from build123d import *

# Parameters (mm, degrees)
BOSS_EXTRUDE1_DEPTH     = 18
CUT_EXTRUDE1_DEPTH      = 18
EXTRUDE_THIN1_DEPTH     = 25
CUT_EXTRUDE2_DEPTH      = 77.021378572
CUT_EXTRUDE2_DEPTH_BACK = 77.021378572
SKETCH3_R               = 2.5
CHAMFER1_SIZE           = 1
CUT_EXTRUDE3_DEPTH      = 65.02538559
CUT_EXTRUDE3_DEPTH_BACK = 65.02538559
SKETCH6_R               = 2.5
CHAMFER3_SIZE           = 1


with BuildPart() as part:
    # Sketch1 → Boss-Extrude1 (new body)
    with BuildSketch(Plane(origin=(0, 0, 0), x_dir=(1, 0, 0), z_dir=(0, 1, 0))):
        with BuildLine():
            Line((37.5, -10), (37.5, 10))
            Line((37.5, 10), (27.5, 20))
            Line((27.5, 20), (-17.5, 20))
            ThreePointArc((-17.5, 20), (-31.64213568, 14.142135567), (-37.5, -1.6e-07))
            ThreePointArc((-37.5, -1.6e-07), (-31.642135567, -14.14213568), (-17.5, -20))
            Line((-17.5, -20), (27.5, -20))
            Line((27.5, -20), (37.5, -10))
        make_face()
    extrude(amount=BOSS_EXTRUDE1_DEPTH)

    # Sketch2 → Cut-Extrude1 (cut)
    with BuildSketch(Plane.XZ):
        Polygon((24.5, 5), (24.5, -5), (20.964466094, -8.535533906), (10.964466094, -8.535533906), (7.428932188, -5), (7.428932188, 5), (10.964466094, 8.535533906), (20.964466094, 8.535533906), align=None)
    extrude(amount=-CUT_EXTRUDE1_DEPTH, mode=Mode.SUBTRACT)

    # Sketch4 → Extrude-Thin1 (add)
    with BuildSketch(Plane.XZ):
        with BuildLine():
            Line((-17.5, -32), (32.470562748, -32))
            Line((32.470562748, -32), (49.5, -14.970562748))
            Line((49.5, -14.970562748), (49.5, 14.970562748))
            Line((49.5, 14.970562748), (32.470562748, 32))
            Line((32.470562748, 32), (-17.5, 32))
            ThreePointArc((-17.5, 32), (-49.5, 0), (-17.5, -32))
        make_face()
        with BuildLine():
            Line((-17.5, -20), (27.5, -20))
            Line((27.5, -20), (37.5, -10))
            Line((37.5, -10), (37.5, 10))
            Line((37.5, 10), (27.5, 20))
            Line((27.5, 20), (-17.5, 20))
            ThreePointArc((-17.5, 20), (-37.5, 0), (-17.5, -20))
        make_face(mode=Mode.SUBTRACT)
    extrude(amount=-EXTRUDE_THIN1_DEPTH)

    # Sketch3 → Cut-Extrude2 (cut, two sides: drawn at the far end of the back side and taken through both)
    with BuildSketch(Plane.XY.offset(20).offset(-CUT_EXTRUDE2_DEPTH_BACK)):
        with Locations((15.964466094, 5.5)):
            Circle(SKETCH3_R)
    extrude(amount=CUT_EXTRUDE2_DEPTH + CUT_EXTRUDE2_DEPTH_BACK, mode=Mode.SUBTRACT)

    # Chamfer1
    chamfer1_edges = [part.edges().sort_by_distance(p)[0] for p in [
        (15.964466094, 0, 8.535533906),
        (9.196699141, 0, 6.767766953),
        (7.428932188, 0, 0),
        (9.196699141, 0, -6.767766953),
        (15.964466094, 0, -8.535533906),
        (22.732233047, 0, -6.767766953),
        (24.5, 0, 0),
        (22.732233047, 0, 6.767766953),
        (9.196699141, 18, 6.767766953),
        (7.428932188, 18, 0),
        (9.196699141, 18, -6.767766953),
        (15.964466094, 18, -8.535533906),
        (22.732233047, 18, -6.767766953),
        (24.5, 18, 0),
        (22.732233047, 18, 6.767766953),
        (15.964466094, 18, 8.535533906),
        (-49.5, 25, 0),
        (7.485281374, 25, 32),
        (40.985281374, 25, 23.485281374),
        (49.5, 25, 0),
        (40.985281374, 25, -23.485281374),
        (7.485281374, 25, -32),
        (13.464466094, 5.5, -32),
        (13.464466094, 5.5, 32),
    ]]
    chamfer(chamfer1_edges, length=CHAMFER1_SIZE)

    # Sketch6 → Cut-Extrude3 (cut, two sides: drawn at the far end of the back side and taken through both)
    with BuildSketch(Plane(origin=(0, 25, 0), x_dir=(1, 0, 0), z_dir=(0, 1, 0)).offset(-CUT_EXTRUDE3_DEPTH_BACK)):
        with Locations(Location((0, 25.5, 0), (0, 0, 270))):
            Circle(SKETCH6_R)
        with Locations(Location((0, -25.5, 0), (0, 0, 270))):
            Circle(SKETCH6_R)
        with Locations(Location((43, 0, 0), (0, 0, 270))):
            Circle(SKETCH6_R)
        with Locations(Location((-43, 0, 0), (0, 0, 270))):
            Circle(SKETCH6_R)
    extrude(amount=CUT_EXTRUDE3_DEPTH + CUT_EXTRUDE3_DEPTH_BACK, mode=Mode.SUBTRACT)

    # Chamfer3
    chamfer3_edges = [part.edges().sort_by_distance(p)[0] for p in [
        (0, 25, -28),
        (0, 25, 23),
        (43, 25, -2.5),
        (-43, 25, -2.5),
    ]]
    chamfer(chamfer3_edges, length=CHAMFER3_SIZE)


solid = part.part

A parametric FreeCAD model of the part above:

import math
import FreeCAD as App
import Part
import Sketcher
Q = App.Units.Quantity


def edges_at(feature, points):
    """Names of the edges that pass closest to the given points."""
    edges = feature.Shape.Edges
    near = lambda p: min(range(len(edges)), key=lambda i: edges[i].distToShape(Part.Vertex(*p))[0])
    return sorted({f"Edge{near(p) + 1}" for p in points})


def add_polygon(sketch, points):
    """Adds a closed chain of lines whose ends are joined by coincident constraints."""
    first, n = sketch.GeometryCount, len(points)
    for a, b in zip(points, points[1:] + points[:1]):
        sketch.addGeometry(Part.LineSegment(App.Vector(*a, 0), App.Vector(*b, 0)), False)
    for i in range(n):
        sketch.addConstraint(Sketcher.Constraint("Coincident", first + i, 2, first + (i + 1) % n, 1))

doc = App.newDocument("Part")
params = doc.addObject("Spreadsheet::Sheet", "Params")
for row, (alias, value) in enumerate([
    ("sketch1_radius", "20 mm"),
    ("sketch1_width", "45 mm"),
    ("sketch1_height", "20 mm"),
    ("pad1_length", "18 mm"),
    ("sketch2_width", "10 mm"),
    ("sketch2_length", "5 mm"),
    ("pocket1_length", "18 mm"),
    ("sketch3_radius", "32 mm"),
    ("sketch3_radius2", "20 mm"),
    ("sketch3_width", "45 mm"),
    ("sketch3_height", "20 mm"),
    ("pad2_length", "25 mm"),
    ("sketch4_diameter", "5 mm"),
    ("chamfer_size", "1 mm"),
    ("sketch5_diameter", "5 mm"),
    ("chamfer2_size", "1 mm"),
], start=1):
    params.set(f"A{row}", alias)
    params.set(f"B{row}", "=" + value)
    params.setAlias(f"B{row}", alias)

body = doc.addObject("PartDesign::Body", "Body")

# Sketch on XZ plane
sketch1 = doc.addObject("Sketcher::SketchObject", "Sketch")
body.addObject(sketch1)
sketch1.AttachmentSupport = (doc.XZ_Plane, [""])
sketch1.MapMode = "FlatFace"
sketch1.addGeometry([
    Part.LineSegment(App.Vector(38, 10, 0), App.Vector(38, -10, 0)),  # 0
    Part.LineSegment(App.Vector(38, -10, 0), App.Vector(28, -20, 0)),  # 1
    Part.LineSegment(App.Vector(28, -20, 0), App.Vector(-18, -20, 0)),  # 2
    Part.ArcOfCircle(Part.Circle(App.Vector(-17, 0, 0), App.Vector(0, 0, 1), 20), math.radians(180), math.radians(270)),  # 3
    Part.ArcOfCircle(Part.Circle(App.Vector(-17, 0, 0), App.Vector(0, 0, 1), 20), math.radians(90), math.radians(180)),  # 4
    Part.LineSegment(App.Vector(-18, 20, 0), App.Vector(28, 20, 0)),  # 5
    Part.LineSegment(App.Vector(28, 20, 0), App.Vector(38, 10, 0)),  # 6
], False)
sketch1.addConstraint([
    Sketcher.Constraint("Coincident", 0, 2, 1, 1),
    Sketcher.Constraint("Coincident", 1, 2, 2, 1),
    Sketcher.Constraint("Tangent", 2, 2, 3, 2),
    Sketcher.Constraint("Tangent", 3, 1, 4, 2),
    Sketcher.Constraint("Tangent", 4, 1, 5, 1),
    Sketcher.Constraint("Coincident", 5, 2, 6, 1),
    Sketcher.Constraint("Coincident", 6, 2, 0, 1),
    Sketcher.Constraint("Vertical", 0),
    Sketcher.Constraint("Horizontal", 2),
    Sketcher.Constraint("Horizontal", 5),
    Sketcher.Constraint("Equal", 3, 4),
    Sketcher.Constraint("Symmetric", 1, 2, 5, 2, -1),
    Sketcher.Constraint("PointOnObject", 3, 1, -1),
    Sketcher.Constraint("Perpendicular", 1, 6),
    Sketcher.Constraint("Equal", 1, 6),
    Sketcher.Constraint("Radius", 3, Q("20 mm")),
    Sketcher.Constraint("DistanceX", 2, 2, 2, 1, Q("45 mm")),
    Sketcher.Constraint("DistanceY", 0, 2, 0, 1, Q("20 mm")),
    Sketcher.Constraint("DistanceX", 3, 3, -1, 1, Q("17.5 mm")),
])
sketch1.setExpression("Constraints[15]", "Params.sketch1_radius")
sketch1.setExpression("Constraints[16]", "Params.sketch1_width")
sketch1.setExpression("Constraints[17]", "Params.sketch1_height")
pad1 = doc.addObject("PartDesign::Pad", "Pad")
body.addObject(pad1)
pad1.Profile = sketch1
pad1.setExpression("Length", "Params.pad1_length")
pad1.Reversed = True

# Sketch on XZ plane
sketch2 = doc.addObject("Sketcher::SketchObject", "Sketch001")
body.addObject(sketch2)
sketch2.AttachmentSupport = (doc.XZ_Plane, [""])
sketch2.MapMode = "FlatFace"
add_polygon(sketch2, [(24, -5), (24, 5), (21, 9), (11, 9), (7, 5), (7, -5), (11, -9), (21, -9)])  # lines 0-7
sketch2.addConstraint([
    Sketcher.Constraint("Vertical", 0),
    Sketcher.Constraint("Horizontal", 2),
    Sketcher.Constraint("Vertical", 4),
    Sketcher.Constraint("Horizontal", 6),
    Sketcher.Constraint("Symmetric", 2, 2, 5, 2, -1),
    Sketcher.Constraint("Perpendicular", 1, 3),
    Sketcher.Constraint("Perpendicular", 3, 5),
    Sketcher.Constraint("Perpendicular", 5, 7),
    Sketcher.Constraint("Horizontal", 0, 2, 3, 2),
    Sketcher.Constraint("Horizontal", 4, 2, 7, 2),
    Sketcher.Constraint("Vertical", 1, 2, 6, 2),
    Sketcher.Constraint("Equal", 6, 0),
    Sketcher.Constraint("DistanceX", 2, 2, 2, 1, Q("10 mm")),
    Sketcher.Constraint("Distance", 1, Q("5 mm")),
    Sketcher.Constraint("DistanceX", -1, 1, 0, 2, Q("24.5 mm")),
])
sketch2.setExpression("Constraints[20]", "Params.sketch2_width")
sketch2.setExpression("Constraints[21]", "Params.sketch2_length")
pocket1 = doc.addObject("PartDesign::Pocket", "Pocket")
body.addObject(pocket1)
pocket1.Profile = sketch2
pocket1.setExpression("Length", "Params.pocket1_length")

# Sketch on XZ plane
sketch3 = doc.addObject("Sketcher::SketchObject", "Sketch002")
body.addObject(sketch3)
sketch3.AttachmentSupport = (doc.XZ_Plane, [""])
sketch3.MapMode = "FlatFace"
sketch3.addGeometry([
    Part.LineSegment(App.Vector(-18, -32, 0), App.Vector(32, -32, 0)),  # 0
    Part.LineSegment(App.Vector(32, -32, 0), App.Vector(50, -15, 0)),  # 1
    Part.LineSegment(App.Vector(50, -15, 0), App.Vector(50, 15, 0)),  # 2
    Part.LineSegment(App.Vector(50, 15, 0), App.Vector(32, 32, 0)),  # 3
    Part.LineSegment(App.Vector(32, 32, 0), App.Vector(-18, 32, 0)),  # 4
    Part.ArcOfCircle(Part.Circle(App.Vector(-18, 0, 0), App.Vector(0, 0, 1), 32), math.radians(90), math.radians(270)),  # 5
    Part.LineSegment(App.Vector(28, -20, 0), App.Vector(-18, -20, 0)),  # 6
    Part.ArcOfCircle(Part.Circle(App.Vector(-18, 0, 0), App.Vector(0, 0, 1), 20), math.radians(90), math.radians(270)),  # 7
    Part.LineSegment(App.Vector(-18, 20, 0), App.Vector(28, 20, 0)),  # 8
    Part.LineSegment(App.Vector(28, 20, 0), App.Vector(38, 10, 0)),  # 9
    Part.LineSegment(App.Vector(38, 10, 0), App.Vector(38, -10, 0)),  # 10
    Part.LineSegment(App.Vector(38, -10, 0), App.Vector(28, -20, 0)),  # 11
], False)
sketch3.addConstraint([
    Sketcher.Constraint("Coincident", 0, 2, 1, 1),
    Sketcher.Constraint("Coincident", 1, 2, 2, 1),
    Sketcher.Constraint("Coincident", 2, 2, 3, 1),
    Sketcher.Constraint("Coincident", 3, 2, 4, 1),
    Sketcher.Constraint("Tangent", 4, 2, 5, 1),
    Sketcher.Constraint("Tangent", 5, 2, 0, 1),
    Sketcher.Constraint("Tangent", 6, 2, 7, 2),
    Sketcher.Constraint("Tangent", 7, 1, 8, 1),
    Sketcher.Constraint("Coincident", 8, 2, 9, 1),
    Sketcher.Constraint("Coincident", 9, 2, 10, 1),
    Sketcher.Constraint("Coincident", 10, 2, 11, 1),
    Sketcher.Constraint("Coincident", 11, 2, 6, 1),
    Sketcher.Constraint("Horizontal", 0),
    Sketcher.Constraint("Vertical", 2),
    Sketcher.Constraint("Horizontal", 4),
    Sketcher.Constraint("Horizontal", 6),
    Sketcher.Constraint("Horizontal", 8),
    Sketcher.Constraint("Vertical", 10),
    Sketcher.Constraint("Coincident", 7, 3, 5, 3),
    Sketcher.Constraint("Symmetric", 0, 2, 3, 2, -1),
    Sketcher.Constraint("Perpendicular", 1, 3),
    Sketcher.Constraint("Parallel", 3, 9),
    Sketcher.Constraint("Perpendicular", 9, 11),
    Sketcher.Constraint("Vertical", 8, 2, 11, 2),
    Sketcher.Constraint("Equal", 1, 3),
    Sketcher.Constraint("Radius", 5, Q("32 mm")),
    Sketcher.Constraint("Radius", 7, Q("20 mm")),
    Sketcher.Constraint("DistanceX", 6, 2, 6, 1, Q("45 mm")),
    Sketcher.Constraint("DistanceY", 10, 2, 10, 1, Q("20 mm")),
    Sketcher.Constraint("DistanceX", 5, 3, 1, 2, Q("67 mm")),
    Sketcher.Constraint("DistanceX", 5, 3, -1, 1, Q("17.5 mm")),
    Sketcher.Constraint("Distance", 1, Q("24.083261 mm")),
])
sketch3.setExpression("Constraints[25]", "Params.sketch3_radius")
sketch3.setExpression("Constraints[26]", "Params.sketch3_radius2")
sketch3.setExpression("Constraints[27]", "Params.sketch3_width")
sketch3.setExpression("Constraints[28]", "Params.sketch3_height")
pad2 = doc.addObject("PartDesign::Pad", "Pad001")
body.addObject(pad2)
pad2.Profile = sketch3
pad2.setExpression("Length", "Params.pad2_length")
pad2.Reversed = True

# Sketch on XY plane
sketch4 = doc.addObject("Sketcher::SketchObject", "Sketch003")
body.addObject(sketch4)
sketch4.AttachmentSupport = (doc.XY_Plane, [""])
sketch4.MapMode = "FlatFace"
sketch4.AttachmentOffset = App.Placement(App.Vector(0, 0, 20), App.Rotation())
sketch4.addGeometry(Part.Circle(App.Vector(16, 5.5, 0), App.Vector(0, 0, 1), 2.5), False)
sketch4.addConstraint([
    Sketcher.Constraint("Diameter", 0, Q("5 mm")),
    Sketcher.Constraint("DistanceY", -1, 1, 0, 3, Q("5.5 mm")),
    Sketcher.Constraint("DistanceX", -1, 1, 0, 3, Q("15.964466 mm")),
])
sketch4.setExpression("Constraints[0]", "Params.sketch4_diameter")
pocket2 = doc.addObject("PartDesign::Pocket", "Pocket001")
body.addObject(pocket2)
pocket2.Profile = sketch4
pocket2.Type = "ThroughAll"
pocket2.Midplane = True
doc.recompute()

chamfer = doc.addObject("PartDesign::Chamfer", "Chamfer")
body.addObject(chamfer)
chamfer.Base = (pocket2, edges_at(pocket2, [
    (15.964, 0, 8.536),
    (9.197, 0, 6.768),
    (7.429, 0, 0),
    (9.197, 0, -6.768),
    (15.964, 0, -8.536),
    (22.732, 0, -6.768),
    (24.5, 0, 0),
    (22.732, 0, 6.768),
    (9.197, 18, 6.768),
    (7.429, 18, 0),
    (9.197, 18, -6.768),
    (15.964, 18, -8.536),
    (22.732, 18, -6.768),
    (24.5, 18, 0),
    (22.732, 18, 6.768),
    (15.964, 18, 8.536),
    (-49.5, 25, 0),
    (7.485, 25, 32),
    (40.985, 25, 23.485),
    (49.5, 25, 0),
    (40.985, 25, -23.485),
    (7.485, 25, -32),
    (13.464, 5.5, -32),
    (13.464, 5.5, 32),
]))
chamfer.setExpression("Size", "Params.chamfer_size")

# Sketch on XZ plane
sketch5 = doc.addObject("Sketcher::SketchObject", "Sketch004")
body.addObject(sketch5)
sketch5.AttachmentSupport = (doc.XZ_Plane, [""])
sketch5.MapMode = "FlatFace"
sketch5.AttachmentOffset = App.Placement(App.Vector(0, 0, -25), App.Rotation())
sketch5.addGeometry([
    Part.Circle(App.Vector(0, -25.5, 0), App.Vector(0, 0, 1), 2.5),
    Part.Circle(App.Vector(0, 25.5, 0), App.Vector(0, 0, 1), 2.5),
    Part.Circle(App.Vector(43, 0, 0), App.Vector(0, 0, 1), 2.5),
    Part.Circle(App.Vector(-43, 0, 0), App.Vector(0, 0, 1), 2.5),
], False)
sketch5.addConstraint([
    Sketcher.Constraint("Equal", 0, 1),
    Sketcher.Constraint("Equal", 1, 2),
    Sketcher.Constraint("Equal", 2, 3),
    Sketcher.Constraint("Symmetric", 0, 3, 1, 3, -1, 1),
    Sketcher.Constraint("Symmetric", 2, 3, 3, 3, -1, 1),
    Sketcher.Constraint("PointOnObject", 0, 3, -2),
    Sketcher.Constraint("PointOnObject", 2, 3, -1),
    Sketcher.Constraint("Diameter", 0, Q("5 mm")),
    Sketcher.Constraint("DistanceX", -1, 1, 2, 3, Q("43 mm")),
    Sketcher.Constraint("DistanceY", 0, 3, 1, 3, Q("51 mm")),
])
sketch5.setExpression("Constraints[7]", "Params.sketch5_diameter")
pocket3 = doc.addObject("PartDesign::Pocket", "Pocket002")
body.addObject(pocket3)
pocket3.Profile = sketch5
pocket3.Type = "ThroughAll"
pocket3.Midplane = True
doc.recompute()

chamfer2 = doc.addObject("PartDesign::Chamfer", "Chamfer001")
body.addObject(chamfer2)
chamfer2.Base = (pocket3, edges_at(pocket3, [
    (0, 25, -28),
    (0, 25, 23),
    (43, 25, -2.5),
    (-43, 25, -2.5),
]))
chamfer2.setExpression("Size", "Params.chamfer2_size")

doc.recompute()
